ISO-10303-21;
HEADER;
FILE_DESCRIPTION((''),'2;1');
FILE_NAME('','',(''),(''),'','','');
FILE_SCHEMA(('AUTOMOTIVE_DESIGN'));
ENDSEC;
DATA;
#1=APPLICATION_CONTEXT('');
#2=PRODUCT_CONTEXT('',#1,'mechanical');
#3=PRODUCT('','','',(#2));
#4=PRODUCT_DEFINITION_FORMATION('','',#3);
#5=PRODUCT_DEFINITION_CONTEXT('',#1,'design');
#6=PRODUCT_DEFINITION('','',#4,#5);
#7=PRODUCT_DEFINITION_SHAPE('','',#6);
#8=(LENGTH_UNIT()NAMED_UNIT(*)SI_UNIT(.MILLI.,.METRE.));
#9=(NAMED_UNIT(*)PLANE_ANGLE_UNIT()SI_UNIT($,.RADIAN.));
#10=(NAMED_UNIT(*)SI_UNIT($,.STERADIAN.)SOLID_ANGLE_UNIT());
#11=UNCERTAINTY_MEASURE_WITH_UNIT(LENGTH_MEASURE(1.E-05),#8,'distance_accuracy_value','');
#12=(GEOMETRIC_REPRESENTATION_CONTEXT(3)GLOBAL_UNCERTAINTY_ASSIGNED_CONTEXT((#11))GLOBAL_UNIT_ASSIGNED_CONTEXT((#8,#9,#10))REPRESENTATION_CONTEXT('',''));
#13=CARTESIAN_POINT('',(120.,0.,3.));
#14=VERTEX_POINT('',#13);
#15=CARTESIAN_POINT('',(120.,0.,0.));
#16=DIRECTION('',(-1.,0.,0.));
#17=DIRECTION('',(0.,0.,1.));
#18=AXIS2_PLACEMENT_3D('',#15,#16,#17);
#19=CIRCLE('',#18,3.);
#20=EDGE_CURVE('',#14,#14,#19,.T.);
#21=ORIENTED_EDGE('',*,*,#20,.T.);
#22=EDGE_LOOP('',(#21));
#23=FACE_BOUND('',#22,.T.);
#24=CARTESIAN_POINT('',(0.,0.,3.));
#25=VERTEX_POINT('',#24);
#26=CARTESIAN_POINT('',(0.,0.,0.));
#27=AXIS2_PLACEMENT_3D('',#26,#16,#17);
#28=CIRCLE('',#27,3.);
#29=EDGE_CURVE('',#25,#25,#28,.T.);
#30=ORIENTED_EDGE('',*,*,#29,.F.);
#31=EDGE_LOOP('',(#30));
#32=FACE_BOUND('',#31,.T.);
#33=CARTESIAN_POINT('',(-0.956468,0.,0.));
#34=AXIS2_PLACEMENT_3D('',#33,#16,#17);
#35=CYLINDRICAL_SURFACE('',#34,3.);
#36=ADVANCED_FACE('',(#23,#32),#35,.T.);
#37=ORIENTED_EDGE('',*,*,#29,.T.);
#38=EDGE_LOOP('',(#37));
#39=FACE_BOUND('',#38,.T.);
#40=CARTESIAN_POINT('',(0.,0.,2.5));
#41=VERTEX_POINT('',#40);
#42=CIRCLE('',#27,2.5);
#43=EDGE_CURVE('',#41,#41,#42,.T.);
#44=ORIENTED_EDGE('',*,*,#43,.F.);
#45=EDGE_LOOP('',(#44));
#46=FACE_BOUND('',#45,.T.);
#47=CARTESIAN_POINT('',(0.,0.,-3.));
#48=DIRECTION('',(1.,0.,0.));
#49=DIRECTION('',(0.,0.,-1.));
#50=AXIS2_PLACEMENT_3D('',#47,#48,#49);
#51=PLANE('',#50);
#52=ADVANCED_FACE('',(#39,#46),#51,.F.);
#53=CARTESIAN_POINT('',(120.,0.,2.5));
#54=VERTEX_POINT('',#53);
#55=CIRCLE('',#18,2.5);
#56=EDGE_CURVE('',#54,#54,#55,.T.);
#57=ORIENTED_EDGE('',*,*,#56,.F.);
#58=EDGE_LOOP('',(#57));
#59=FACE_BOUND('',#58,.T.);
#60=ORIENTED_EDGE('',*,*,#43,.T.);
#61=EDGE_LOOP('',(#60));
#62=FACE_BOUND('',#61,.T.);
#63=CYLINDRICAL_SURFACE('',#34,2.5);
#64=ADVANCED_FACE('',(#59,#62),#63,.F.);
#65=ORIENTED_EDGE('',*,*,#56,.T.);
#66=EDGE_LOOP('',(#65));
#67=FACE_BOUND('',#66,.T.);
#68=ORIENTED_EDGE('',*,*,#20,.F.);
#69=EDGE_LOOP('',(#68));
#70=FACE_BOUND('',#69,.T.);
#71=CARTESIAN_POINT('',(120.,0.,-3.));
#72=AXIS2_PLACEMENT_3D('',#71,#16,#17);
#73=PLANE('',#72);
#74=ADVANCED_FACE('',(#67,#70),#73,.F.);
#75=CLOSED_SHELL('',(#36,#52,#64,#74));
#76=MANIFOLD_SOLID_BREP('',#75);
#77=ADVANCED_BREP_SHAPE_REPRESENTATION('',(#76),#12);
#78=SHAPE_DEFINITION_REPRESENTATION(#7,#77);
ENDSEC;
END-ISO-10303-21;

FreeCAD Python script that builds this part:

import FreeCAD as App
import Part
import Sketcher
from FreeCAD import Vector

doc = App.newDocument("Part")
body = doc.addObject("PartDesign::Body", "Body")

# Sketch on XZ plane
sketch1 = body.newObject("Sketcher::SketchObject", "Sketch")
sketch1.AttachmentSupport = (doc.getObject("XZ_Plane"), [""])
sketch1.MapMode = "FlatFace"
sketch1.addGeometry([
    Part.LineSegment(Vector(0, -3, 0), Vector(0, -2.5, 0)),
    Part.LineSegment(Vector(0, -2.5, 0), Vector(120, -2.5, 0)),
    Part.LineSegment(Vector(120, -2.5, 0), Vector(120, -3, 0)),
    Part.LineSegment(Vector(120, -3, 0), Vector(0, -3, 0)),
], False)
sketch1.addConstraint([
    Sketcher.Constraint("Coincident", 0, 2, 1, 1),
    Sketcher.Constraint("Coincident", 1, 2, 2, 1),
    Sketcher.Constraint("Coincident", 2, 2, 3, 1),
    Sketcher.Constraint("Coincident", 3, 2, 0, 1),
    Sketcher.Constraint("Vertical", 0),
    Sketcher.Constraint("Horizontal", 1),
    Sketcher.Constraint("Vertical", 2),
    Sketcher.Constraint("Horizontal", 3),
    Sketcher.Constraint("PointOnObject", 0, 2, -2),
    Sketcher.Constraint("DistanceX", 1, 1, 1, 2, 120.0),
    Sketcher.Constraint("DistanceY", 0, 1, 0, 2, 0.5),
    Sketcher.Constraint("DistanceY", 2, 2, -1, 1, 3.0),
])
revolution = body.newObject("PartDesign::Revolution", "Revolution")
revolution.Profile = sketch1
revolution.ReferenceAxis = (sketch1, ["H_Axis"])
revolution.Angle = 360

doc.recompute()
